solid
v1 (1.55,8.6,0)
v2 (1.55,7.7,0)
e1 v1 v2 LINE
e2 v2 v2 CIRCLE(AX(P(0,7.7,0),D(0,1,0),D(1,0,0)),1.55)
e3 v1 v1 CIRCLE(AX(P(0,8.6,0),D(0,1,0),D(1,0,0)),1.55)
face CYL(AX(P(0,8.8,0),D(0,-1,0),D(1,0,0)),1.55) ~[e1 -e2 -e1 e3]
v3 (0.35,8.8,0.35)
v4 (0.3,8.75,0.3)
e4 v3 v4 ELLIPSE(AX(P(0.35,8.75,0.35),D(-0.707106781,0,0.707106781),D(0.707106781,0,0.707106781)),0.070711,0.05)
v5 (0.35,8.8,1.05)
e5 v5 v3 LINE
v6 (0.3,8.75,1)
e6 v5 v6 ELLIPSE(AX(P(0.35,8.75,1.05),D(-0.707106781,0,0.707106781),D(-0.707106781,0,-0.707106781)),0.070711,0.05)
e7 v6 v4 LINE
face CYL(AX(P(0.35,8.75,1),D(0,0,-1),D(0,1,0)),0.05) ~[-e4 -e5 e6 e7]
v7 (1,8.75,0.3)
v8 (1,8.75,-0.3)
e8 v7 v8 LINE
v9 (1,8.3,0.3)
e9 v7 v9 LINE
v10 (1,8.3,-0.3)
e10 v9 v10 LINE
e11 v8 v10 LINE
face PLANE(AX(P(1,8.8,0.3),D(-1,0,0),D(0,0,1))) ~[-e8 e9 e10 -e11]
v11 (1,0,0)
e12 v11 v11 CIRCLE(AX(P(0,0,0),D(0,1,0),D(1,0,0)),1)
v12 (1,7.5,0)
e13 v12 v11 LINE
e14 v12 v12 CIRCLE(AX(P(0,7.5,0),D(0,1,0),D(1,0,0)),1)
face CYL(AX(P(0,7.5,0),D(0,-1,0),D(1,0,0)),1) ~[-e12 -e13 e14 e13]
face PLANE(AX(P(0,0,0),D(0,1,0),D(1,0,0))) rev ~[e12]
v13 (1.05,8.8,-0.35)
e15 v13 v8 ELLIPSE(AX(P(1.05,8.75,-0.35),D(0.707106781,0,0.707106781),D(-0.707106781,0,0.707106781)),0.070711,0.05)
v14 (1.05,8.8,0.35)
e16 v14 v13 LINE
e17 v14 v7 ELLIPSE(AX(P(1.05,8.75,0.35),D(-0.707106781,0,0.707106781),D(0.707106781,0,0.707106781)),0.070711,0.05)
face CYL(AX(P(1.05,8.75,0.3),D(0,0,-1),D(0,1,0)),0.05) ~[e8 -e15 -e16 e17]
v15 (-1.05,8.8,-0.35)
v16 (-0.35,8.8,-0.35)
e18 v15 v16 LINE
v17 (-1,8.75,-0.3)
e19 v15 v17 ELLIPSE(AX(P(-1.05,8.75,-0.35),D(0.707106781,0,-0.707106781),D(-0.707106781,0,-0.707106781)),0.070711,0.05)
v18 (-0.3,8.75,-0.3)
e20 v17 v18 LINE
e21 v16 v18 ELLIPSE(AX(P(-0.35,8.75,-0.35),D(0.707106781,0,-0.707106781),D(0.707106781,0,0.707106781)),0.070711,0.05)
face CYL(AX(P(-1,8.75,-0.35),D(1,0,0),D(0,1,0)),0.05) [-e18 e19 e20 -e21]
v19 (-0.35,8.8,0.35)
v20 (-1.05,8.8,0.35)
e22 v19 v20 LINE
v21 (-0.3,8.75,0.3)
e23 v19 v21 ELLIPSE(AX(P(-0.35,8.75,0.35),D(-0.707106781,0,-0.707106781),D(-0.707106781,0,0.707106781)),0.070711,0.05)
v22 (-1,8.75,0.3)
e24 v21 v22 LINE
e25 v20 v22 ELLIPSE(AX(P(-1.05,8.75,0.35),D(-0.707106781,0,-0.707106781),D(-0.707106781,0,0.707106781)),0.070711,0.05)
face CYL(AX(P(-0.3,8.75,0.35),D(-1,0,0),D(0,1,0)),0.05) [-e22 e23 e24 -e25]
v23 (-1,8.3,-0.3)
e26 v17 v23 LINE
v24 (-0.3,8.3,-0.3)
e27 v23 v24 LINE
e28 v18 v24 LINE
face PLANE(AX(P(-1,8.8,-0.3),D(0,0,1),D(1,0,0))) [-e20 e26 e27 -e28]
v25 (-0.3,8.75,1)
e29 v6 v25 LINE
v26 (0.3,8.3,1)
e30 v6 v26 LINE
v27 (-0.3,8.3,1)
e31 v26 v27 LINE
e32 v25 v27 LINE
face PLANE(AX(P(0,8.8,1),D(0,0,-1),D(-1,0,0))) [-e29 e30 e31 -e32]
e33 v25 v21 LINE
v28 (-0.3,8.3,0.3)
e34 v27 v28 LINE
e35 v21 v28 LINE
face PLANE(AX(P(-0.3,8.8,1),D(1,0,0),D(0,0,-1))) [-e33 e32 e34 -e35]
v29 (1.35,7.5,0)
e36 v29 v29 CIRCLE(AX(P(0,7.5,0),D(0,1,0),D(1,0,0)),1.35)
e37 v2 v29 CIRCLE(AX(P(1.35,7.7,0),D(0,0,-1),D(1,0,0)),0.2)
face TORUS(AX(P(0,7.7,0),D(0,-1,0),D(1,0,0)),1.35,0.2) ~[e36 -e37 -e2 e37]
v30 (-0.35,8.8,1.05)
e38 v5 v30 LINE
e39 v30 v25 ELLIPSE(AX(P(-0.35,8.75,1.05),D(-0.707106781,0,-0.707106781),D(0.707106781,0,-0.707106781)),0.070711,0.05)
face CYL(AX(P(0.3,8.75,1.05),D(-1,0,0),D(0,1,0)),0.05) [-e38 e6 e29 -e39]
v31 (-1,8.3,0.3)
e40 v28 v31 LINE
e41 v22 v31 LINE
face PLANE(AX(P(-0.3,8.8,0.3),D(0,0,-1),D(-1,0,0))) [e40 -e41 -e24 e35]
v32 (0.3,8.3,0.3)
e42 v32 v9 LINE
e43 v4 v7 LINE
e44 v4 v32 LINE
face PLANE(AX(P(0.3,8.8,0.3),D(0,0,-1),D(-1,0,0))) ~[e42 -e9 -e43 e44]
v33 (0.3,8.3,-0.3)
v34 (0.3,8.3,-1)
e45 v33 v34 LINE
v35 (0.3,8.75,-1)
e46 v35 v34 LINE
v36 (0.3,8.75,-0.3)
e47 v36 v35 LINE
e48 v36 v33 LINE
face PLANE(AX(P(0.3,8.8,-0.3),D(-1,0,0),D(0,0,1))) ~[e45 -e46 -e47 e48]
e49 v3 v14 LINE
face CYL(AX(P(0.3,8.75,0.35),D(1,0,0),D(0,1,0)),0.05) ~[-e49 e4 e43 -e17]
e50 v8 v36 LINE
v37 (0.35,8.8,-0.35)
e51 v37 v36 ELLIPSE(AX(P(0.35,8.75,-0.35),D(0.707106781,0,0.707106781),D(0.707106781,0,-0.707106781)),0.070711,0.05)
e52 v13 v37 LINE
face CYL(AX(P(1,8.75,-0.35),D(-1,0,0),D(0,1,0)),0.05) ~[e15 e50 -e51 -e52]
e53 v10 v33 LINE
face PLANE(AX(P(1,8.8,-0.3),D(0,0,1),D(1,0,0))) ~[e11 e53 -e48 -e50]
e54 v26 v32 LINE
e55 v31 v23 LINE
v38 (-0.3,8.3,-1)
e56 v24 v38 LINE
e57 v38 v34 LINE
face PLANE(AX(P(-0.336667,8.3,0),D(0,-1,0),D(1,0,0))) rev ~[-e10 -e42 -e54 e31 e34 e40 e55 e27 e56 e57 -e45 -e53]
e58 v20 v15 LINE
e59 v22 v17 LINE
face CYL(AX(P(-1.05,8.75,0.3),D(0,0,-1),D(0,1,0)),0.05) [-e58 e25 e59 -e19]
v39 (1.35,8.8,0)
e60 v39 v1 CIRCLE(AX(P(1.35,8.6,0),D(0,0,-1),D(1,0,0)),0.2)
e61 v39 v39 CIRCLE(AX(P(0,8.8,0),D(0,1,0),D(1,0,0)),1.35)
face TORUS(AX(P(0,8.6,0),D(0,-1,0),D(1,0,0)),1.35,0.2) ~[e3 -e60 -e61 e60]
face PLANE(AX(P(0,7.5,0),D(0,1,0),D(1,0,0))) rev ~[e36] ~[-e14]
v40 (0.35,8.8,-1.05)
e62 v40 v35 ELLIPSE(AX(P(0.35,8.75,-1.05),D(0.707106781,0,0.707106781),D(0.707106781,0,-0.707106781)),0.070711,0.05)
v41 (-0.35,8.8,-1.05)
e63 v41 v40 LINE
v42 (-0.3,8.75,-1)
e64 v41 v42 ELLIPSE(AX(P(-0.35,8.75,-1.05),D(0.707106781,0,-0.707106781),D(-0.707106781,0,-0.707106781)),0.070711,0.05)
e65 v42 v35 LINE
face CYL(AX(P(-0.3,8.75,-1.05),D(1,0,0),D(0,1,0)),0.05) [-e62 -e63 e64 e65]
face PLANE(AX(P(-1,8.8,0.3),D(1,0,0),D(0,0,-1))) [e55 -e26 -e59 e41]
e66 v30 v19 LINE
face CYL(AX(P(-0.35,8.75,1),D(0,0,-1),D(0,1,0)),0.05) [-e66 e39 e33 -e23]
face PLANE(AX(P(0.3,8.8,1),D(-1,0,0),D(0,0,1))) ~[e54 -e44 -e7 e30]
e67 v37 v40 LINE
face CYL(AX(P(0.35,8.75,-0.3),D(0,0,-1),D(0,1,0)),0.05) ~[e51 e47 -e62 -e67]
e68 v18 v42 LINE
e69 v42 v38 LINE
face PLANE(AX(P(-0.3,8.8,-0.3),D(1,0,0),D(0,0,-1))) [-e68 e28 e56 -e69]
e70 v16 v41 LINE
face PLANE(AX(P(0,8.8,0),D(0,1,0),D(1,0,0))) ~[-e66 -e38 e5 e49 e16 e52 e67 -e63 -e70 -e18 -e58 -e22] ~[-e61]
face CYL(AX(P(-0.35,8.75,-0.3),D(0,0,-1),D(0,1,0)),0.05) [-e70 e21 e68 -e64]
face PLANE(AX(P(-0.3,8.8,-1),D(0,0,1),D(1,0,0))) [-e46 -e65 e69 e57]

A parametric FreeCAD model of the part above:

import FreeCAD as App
import Part
import Sketcher
Q = App.Units.Quantity


def edges_at(feature, points):
    """Names of the edges that pass closest to the given points."""
    edges = feature.Shape.Edges
    near = lambda p: min(range(len(edges)), key=lambda i: edges[i].distToShape(Part.Vertex(*p))[0])
    return sorted({f"Edge{near(p) + 1}" for p in points})


def add_polygon(sketch, points):
    """Adds a closed chain of lines whose ends are joined by coincident constraints."""
    first, n = sketch.GeometryCount, len(points)
    for a, b in zip(points, points[1:] + points[:1]):
        sketch.addGeometry(Part.LineSegment(App.Vector(*a, 0), App.Vector(*b, 0)), False)
    for i in range(n):
        sketch.addConstraint(Sketcher.Constraint("Coincident", first + i, 2, first + (i + 1) % n, 1))

doc = App.newDocument("Part")
body = doc.addObject("PartDesign::Body", "Body")

sketch1 = doc.addObject("Sketcher::SketchObject", "Sketch")
body.addObject(sketch1)
sketch1.AttachmentSupport = (doc.XY_Plane, [""])
sketch1.MapMode = "FlatFace"
add_polygon(sketch1, [(0, 8.8), (0, 0), (1, 0), (1, 7.5), (1.55, 7.5), (1.55, 8.8)])
sketch1.addConstraint([
    Sketcher.Constraint("Vertical", 0),
    Sketcher.Constraint("Horizontal", 1),
    Sketcher.Constraint("Vertical", 2),
    Sketcher.Constraint("Horizontal", 3),
    Sketcher.Constraint("Vertical", 4),
    Sketcher.Constraint("Horizontal", 5),
    Sketcher.Constraint("Coincident", 0, 2, -1, 1),
    Sketcher.Constraint("DistanceX", 1, 1, 1, 2, Q("1 mm")),
    Sketcher.Constraint("DistanceY", 0, 2, 0, 1, Q("8.8 mm")),
    Sketcher.Constraint("DistanceY", 2, 1, 2, 2, Q("7.5 mm")),
    Sketcher.Constraint("DistanceX", 3, 1, 3, 2, Q("0.55 mm")),
])
revolution = doc.addObject("PartDesign::Revolution", "Revolution")
body.addObject(revolution)
revolution.Profile = sketch1
revolution.ReferenceAxis = (sketch1, ["V_Axis"])
revolution.Angle = 360
doc.recompute()

fillet = doc.addObject("PartDesign::Fillet", "Fillet")
body.addObject(fillet)
fillet.Base = (revolution, edges_at(revolution, [(-1.55, 8.8, 0), (-1.55, 7.5, 0)]))
fillet.Radius = 0.2

sketch2 = doc.addObject("Sketcher::SketchObject", "Sketch001")
body.addObject(sketch2)
sketch2.AttachmentSupport = (doc.XZ_Plane, [""])
sketch2.MapMode = "FlatFace"
sketch2.AttachmentOffset = App.Placement(App.Vector(0, 0, -8.8), App.Rotation())
add_polygon(sketch2, [(-0.3, 1), (0, 1), (0, -1), (-0.3, -1), (-0.3, -0.3), (-1, -0.3), (-1, 0.3), (-0.3, 0.3)])
sketch2.addConstraint([
    Sketcher.Constraint("Horizontal", 0),
    Sketcher.Constraint("Vertical", 1),
    Sketcher.Constraint("Horizontal", 2),
    Sketcher.Constraint("Vertical", 3),
    Sketcher.Constraint("Horizontal", 4),
    Sketcher.Constraint("Vertical", 5),
    Sketcher.Constraint("Horizontal", 6),
    Sketcher.Constraint("Vertical", 7),
    Sketcher.Constraint("Symmetric", 0, 2, 1, 2, -1, 1),
    Sketcher.Constraint("Symmetric", 3, 2, 6, 2, -1),
    Sketcher.Constraint("Equal", 6, 3),
    Sketcher.Constraint("DistanceY", 1, 2, 1, 1, Q("2 mm")),
    Sketcher.Constraint("DistanceX", 0, 1, 0, 2, Q("0.3 mm")),
    Sketcher.Constraint("DistanceX", 4, 2, 4, 1, Q("0.7 mm")),
])
pocket1 = doc.addObject("PartDesign::Pocket", "Pocket")
body.addObject(pocket1)
pocket1.Profile = sketch2
pocket1.Length = 0.5
pocket1.Reversed = True
doc.recompute()

mirrored = doc.addObject("PartDesign::Mirrored", "Mirrored")
body.addObject(mirrored)
mirrored.Originals = [pocket1]
mirrored.MirrorPlane = (doc.YZ_Plane, [""])
body.Tip = mirrored
doc.recompute()

fillet2 = doc.addObject("PartDesign::Fillet", "Fillet001")
body.addObject(fillet2)
fillet2.Base = (mirrored, edges_at(mirrored, [
    (-0.65, 8.8, 0.3),
    (-1, 8.8, 0),
    (-0.65, 8.8, -0.3),
    (-0.3, 8.8, -0.65),
    (0, 8.8, -1),
    (0, 8.8, -1),
    (0.3, 8.8, -0.65),
    (0.65, 8.8, -0.3),
    (0.65, 8.8, 0.3),
    (1, 8.8, 0),
    (0.3, 8.8, 0.65),
    (-0.3, 8.8, 0.65),
    (0, 8.8, 1),
    (0, 8.8, 1),
]))
fillet2.Radius = 0.05

doc.recompute()
